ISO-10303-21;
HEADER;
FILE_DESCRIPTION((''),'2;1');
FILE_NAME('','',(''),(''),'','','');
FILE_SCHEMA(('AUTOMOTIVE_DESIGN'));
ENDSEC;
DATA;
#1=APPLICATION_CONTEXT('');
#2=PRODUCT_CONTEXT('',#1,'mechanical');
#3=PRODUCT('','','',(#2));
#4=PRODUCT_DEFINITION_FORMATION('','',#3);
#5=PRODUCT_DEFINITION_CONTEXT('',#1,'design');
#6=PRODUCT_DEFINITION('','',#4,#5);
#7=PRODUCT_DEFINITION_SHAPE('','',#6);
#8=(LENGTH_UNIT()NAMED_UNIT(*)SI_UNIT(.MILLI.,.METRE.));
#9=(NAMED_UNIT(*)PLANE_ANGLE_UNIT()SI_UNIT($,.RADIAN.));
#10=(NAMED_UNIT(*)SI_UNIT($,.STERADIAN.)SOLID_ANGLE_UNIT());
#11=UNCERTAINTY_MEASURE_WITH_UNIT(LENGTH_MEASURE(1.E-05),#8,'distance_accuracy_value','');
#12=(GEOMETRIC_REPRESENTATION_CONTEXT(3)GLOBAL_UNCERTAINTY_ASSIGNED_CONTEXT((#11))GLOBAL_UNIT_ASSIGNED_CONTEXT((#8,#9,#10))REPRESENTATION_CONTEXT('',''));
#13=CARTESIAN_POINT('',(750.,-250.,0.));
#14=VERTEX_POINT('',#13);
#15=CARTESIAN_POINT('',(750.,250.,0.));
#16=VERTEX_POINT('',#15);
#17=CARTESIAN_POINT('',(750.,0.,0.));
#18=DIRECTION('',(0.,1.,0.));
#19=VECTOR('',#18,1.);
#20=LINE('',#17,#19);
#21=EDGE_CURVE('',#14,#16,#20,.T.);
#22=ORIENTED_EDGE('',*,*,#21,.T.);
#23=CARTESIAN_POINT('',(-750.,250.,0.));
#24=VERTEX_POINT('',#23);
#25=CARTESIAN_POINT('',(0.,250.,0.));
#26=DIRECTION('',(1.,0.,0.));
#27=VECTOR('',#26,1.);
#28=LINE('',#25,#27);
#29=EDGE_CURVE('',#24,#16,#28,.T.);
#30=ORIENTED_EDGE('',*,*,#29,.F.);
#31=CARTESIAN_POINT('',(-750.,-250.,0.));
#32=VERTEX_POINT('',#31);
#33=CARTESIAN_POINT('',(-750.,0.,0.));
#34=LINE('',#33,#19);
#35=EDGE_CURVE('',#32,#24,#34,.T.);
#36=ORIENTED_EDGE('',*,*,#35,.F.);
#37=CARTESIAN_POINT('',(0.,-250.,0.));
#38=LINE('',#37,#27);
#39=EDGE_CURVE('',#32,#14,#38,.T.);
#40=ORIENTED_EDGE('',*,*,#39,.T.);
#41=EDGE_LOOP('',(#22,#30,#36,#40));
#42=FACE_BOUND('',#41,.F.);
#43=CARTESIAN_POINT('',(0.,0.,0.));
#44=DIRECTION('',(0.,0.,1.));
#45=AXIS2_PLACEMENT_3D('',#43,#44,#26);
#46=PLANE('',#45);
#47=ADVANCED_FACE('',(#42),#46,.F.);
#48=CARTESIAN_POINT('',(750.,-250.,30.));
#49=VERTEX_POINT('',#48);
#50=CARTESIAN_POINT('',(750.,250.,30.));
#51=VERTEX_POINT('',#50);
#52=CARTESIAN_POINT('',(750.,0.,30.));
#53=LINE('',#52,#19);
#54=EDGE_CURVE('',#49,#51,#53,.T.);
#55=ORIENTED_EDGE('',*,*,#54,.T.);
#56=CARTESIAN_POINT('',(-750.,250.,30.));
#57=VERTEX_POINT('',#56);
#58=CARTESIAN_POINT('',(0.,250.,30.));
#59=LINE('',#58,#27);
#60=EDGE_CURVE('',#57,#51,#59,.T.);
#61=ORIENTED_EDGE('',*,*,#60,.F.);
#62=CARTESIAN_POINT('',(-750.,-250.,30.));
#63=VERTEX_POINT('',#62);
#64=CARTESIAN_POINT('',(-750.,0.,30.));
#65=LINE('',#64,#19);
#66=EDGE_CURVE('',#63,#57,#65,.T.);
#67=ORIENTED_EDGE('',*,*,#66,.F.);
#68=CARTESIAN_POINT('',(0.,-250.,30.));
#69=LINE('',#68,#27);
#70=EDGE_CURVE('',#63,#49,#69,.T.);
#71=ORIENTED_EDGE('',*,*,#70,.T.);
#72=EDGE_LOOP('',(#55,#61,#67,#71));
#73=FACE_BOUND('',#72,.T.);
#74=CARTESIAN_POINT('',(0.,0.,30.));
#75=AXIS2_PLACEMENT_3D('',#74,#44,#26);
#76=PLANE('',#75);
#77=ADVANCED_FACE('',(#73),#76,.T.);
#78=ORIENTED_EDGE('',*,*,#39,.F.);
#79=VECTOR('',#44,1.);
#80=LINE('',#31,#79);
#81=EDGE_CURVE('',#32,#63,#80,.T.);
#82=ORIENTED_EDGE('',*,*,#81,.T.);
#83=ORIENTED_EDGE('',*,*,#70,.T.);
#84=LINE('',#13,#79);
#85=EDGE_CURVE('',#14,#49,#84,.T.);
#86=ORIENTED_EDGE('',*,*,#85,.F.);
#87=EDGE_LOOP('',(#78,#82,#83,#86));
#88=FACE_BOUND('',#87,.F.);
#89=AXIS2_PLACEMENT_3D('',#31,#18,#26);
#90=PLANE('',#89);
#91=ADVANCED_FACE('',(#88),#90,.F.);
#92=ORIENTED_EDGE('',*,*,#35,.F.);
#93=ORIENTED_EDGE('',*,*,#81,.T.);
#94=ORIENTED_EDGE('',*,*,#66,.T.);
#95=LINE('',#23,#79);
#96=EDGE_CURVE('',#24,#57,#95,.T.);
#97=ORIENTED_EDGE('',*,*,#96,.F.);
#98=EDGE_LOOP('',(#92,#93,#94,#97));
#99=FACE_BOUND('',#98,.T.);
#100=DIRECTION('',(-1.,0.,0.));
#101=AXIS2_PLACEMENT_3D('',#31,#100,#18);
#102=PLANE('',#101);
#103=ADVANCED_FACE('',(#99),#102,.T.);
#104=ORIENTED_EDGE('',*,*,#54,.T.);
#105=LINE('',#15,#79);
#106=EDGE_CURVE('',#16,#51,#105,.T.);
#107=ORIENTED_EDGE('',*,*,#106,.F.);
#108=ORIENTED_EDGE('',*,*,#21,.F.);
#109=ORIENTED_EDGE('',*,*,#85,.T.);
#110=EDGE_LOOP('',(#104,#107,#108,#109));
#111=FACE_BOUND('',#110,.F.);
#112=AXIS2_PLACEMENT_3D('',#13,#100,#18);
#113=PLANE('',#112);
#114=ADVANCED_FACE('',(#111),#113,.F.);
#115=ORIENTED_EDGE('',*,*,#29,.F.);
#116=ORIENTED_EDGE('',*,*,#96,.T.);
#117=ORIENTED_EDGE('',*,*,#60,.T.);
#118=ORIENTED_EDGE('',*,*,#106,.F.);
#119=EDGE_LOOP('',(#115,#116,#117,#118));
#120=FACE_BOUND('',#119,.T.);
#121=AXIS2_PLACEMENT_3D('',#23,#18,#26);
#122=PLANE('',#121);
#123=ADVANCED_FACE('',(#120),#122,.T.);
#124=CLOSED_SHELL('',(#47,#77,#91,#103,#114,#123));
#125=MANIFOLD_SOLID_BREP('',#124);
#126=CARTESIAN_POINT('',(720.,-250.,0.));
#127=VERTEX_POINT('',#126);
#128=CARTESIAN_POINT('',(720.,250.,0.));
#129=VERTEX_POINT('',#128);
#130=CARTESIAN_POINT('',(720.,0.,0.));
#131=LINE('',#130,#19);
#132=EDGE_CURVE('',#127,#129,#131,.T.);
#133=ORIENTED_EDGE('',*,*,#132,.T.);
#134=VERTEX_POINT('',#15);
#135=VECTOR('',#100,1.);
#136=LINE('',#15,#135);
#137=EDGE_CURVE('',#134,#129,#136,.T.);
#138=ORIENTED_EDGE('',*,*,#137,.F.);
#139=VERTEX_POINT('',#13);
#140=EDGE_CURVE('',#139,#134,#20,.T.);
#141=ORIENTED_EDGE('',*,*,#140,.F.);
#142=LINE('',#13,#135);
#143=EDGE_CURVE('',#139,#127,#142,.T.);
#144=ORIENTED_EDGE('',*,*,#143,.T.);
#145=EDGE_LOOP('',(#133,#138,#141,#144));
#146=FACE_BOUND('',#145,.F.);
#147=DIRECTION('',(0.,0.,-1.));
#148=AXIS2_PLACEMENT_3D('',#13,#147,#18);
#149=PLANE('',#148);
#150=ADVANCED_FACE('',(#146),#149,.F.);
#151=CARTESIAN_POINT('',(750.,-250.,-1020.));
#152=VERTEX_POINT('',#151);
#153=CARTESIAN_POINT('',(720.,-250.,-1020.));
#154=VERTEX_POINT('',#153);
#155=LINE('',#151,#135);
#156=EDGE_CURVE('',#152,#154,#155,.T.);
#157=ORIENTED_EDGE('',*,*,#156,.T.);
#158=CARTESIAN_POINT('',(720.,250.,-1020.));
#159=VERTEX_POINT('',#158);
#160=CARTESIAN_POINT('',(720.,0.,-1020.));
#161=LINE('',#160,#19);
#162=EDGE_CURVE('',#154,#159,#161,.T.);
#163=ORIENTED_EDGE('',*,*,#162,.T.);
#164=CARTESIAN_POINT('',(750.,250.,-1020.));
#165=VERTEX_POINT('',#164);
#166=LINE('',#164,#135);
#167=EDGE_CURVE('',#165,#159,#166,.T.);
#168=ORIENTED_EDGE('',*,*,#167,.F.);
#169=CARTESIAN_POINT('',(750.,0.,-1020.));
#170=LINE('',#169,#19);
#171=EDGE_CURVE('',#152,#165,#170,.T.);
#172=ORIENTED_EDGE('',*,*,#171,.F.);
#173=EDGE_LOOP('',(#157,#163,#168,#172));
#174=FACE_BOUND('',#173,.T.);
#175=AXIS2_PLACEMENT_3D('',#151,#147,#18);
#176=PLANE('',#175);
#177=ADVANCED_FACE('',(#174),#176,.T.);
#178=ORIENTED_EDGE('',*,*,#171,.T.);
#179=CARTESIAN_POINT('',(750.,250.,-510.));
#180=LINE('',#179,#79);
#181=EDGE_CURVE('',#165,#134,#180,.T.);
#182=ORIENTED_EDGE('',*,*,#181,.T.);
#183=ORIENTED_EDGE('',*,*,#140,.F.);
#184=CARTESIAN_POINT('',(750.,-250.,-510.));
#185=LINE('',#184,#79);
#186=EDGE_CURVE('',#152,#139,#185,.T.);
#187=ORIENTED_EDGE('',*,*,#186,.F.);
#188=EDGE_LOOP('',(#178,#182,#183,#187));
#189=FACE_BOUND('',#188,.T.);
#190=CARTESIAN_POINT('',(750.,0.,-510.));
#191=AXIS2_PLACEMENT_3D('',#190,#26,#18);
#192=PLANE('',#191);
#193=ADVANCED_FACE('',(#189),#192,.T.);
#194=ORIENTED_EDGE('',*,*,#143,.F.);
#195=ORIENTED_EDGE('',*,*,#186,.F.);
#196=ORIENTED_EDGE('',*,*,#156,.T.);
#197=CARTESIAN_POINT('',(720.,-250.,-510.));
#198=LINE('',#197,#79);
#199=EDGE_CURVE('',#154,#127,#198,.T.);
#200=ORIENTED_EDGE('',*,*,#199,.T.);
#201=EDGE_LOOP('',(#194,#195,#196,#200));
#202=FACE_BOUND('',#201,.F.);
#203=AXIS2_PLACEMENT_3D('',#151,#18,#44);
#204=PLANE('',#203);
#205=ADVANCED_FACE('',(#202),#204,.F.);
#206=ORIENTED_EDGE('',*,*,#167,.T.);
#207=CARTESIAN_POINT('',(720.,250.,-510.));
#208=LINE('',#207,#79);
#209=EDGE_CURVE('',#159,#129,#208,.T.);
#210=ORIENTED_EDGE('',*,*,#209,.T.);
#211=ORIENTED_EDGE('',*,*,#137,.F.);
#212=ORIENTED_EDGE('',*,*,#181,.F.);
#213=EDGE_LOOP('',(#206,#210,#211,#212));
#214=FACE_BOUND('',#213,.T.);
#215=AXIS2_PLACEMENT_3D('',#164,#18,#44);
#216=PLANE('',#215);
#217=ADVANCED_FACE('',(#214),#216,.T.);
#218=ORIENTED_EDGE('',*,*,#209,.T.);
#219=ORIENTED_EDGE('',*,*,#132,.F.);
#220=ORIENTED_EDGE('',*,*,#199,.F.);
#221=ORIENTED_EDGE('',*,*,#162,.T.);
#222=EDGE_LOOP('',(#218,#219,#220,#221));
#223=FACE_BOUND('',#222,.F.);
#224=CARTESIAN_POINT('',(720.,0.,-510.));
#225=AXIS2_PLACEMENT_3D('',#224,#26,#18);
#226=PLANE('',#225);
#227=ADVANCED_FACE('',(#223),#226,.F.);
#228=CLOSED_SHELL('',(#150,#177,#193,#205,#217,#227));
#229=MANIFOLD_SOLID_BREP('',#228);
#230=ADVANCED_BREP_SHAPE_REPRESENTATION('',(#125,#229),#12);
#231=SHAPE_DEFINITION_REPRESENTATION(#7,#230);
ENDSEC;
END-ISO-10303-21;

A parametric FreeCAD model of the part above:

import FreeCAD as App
import Part
import Sketcher

V = App.Vector

doc = App.newDocument("Part")
body = doc.addObject("PartDesign::Body", "Body")

sketch1 = body.newObject("Sketcher::SketchObject", "Sketch")
sketch1.AttachmentSupport = (doc.getObject("XY_Plane"), [""])
sketch1.MapMode = "FlatFace"
sketch1.addGeometry([
    Part.LineSegment(V(-750, 250, 0), V(-750, -250, 0)),
    Part.LineSegment(V(-750, -250, 0), V(750, -250, 0)),
    Part.LineSegment(V(750, -250, 0), V(750, 250, 0)),
    Part.LineSegment(V(750, 250, 0), V(-750, 250, 0)),
], False)
sketch1.addConstraint([
    Sketcher.Constraint("Coincident", 0, 2, 1, 1),
    Sketcher.Constraint("Coincident", 1, 2, 2, 1),
    Sketcher.Constraint("Coincident", 2, 2, 3, 1),
    Sketcher.Constraint("Coincident", 3, 2, 0, 1),
    Sketcher.Constraint("Vertical", 0),
    Sketcher.Constraint("Horizontal", 1),
    Sketcher.Constraint("Vertical", 2),
    Sketcher.Constraint("Horizontal", 3),
    Sketcher.Constraint("Symmetric", 0, 2, 2, 2, -1, 1),
    Sketcher.Constraint("DistanceX", 1, 1, 1, 2, 1500.0),
    Sketcher.Constraint("DistanceY", 0, 2, 0, 1, 500.0),
])
pad1 = body.newObject("PartDesign::Pad", "Pad")
pad1.Profile = sketch1
pad1.Length = 30
body2 = doc.addObject("PartDesign::Body", "Body001")

sketch2 = body2.newObject("Sketcher::SketchObject", "Sketch001")
sketch2.AttachmentSupport = (doc.getObject("YZ_Plane001"), [""])
sketch2.MapMode = "FlatFace"
sketch2.AttachmentOffset = App.Placement(V(0, 0, 750), App.Rotation())
sketch2.addGeometry([
    Part.LineSegment(V(-250, 0, 0), V(-250, -1020, 0)),
    Part.LineSegment(V(-250, -1020, 0), V(250, -1020, 0)),
    Part.LineSegment(V(250, -1020, 0), V(250, 0, 0)),
    Part.LineSegment(V(250, 0, 0), V(-250, 0, 0)),
], False)
sketch2.addConstraint([
    Sketcher.Constraint("Coincident", 0, 2, 1, 1),
    Sketcher.Constraint("Coincident", 1, 2, 2, 1),
    Sketcher.Constraint("Coincident", 2, 2, 3, 1),
    Sketcher.Constraint("Coincident", 3, 2, 0, 1),
    Sketcher.Constraint("Vertical", 0),
    Sketcher.Constraint("Horizontal", 1),
    Sketcher.Constraint("Vertical", 2),
    Sketcher.Constraint("Horizontal", 3),
    Sketcher.Constraint("Symmetric", 2, 2, 3, 2, -1, 1),
    Sketcher.Constraint("DistanceX", 1, 1, 1, 2, 500.0),
    Sketcher.Constraint("DistanceY", 0, 2, 0, 1, 1020.0),
])
pad2 = body2.newObject("PartDesign::Pad", "Pad001")
pad2.Profile = sketch2
pad2.Length = 30
pad2.Reversed = True

doc.recompute()
